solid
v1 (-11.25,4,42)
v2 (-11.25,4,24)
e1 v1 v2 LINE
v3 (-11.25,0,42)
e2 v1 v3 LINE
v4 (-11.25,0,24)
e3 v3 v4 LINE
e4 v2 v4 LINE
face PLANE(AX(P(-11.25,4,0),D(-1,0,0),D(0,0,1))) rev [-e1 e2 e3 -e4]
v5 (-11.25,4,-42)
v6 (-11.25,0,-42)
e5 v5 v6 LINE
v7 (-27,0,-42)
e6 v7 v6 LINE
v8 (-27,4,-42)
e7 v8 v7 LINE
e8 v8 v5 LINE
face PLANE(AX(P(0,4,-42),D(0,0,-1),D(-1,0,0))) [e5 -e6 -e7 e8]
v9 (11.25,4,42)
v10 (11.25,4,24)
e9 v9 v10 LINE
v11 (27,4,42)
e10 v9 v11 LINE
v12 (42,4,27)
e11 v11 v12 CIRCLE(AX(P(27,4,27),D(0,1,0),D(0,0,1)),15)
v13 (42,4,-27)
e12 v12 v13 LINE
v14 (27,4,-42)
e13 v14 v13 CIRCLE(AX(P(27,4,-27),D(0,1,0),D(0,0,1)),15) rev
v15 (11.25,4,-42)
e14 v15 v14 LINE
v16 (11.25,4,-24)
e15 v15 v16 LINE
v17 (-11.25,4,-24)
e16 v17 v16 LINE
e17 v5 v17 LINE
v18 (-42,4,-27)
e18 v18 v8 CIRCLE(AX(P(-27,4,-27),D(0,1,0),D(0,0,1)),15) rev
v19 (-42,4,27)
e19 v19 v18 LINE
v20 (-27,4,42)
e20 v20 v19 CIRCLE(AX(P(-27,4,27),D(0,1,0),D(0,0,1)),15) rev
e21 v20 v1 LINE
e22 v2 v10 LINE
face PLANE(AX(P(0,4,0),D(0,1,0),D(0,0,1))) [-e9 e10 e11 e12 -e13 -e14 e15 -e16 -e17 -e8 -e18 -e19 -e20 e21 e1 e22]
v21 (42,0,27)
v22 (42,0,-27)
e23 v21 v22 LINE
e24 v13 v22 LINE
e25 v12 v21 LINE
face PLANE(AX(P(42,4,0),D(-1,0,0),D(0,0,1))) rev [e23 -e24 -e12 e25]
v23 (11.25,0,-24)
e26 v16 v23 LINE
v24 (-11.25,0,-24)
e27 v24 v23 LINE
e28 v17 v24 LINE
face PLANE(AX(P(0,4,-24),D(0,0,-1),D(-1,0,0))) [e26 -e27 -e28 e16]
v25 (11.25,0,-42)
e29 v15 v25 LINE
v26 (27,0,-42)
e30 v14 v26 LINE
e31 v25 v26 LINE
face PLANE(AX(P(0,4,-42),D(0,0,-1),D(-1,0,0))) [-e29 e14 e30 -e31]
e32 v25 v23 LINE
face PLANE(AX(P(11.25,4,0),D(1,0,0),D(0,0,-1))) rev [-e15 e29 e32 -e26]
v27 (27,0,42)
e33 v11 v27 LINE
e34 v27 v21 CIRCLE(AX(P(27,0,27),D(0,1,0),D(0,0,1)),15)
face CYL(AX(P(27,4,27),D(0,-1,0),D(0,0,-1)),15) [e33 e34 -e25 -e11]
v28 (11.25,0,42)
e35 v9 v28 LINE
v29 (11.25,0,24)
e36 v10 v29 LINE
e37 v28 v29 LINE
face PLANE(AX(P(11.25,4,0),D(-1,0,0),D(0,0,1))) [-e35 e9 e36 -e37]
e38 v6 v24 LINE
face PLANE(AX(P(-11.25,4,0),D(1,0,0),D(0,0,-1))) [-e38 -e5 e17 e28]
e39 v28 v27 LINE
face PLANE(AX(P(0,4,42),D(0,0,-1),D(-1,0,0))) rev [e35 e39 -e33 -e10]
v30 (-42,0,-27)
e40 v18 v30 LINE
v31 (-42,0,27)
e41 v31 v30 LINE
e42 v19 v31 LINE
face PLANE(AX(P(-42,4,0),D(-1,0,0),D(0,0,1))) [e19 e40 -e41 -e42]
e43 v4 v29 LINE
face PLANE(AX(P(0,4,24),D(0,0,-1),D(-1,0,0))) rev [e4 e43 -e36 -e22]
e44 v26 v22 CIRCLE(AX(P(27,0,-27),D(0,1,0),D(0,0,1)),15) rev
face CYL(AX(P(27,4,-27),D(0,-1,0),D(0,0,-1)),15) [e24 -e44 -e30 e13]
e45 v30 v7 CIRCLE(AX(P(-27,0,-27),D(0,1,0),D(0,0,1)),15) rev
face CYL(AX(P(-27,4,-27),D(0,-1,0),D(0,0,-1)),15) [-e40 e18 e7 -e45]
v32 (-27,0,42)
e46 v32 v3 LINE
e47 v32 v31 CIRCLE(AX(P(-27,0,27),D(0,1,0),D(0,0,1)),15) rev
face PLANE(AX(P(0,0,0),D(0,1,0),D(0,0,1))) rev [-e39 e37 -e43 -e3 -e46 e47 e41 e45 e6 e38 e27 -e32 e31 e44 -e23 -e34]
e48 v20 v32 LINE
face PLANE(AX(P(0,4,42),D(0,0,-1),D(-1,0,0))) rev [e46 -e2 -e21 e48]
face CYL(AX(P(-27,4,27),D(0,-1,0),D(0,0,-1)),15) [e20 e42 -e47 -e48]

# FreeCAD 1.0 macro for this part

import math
import FreeCAD as App
import Part
import Sketcher
from FreeCAD import Vector
Q = App.Units.Quantity

doc = App.newDocument("Part")
body = doc.addObject("PartDesign::Body", "Body")

# Sketch on XZ plane
sketch1 = body.newObject("Sketcher::SketchObject", "Sketch")
sketch1.AttachmentSupport = (doc.getObject("XZ_Plane"), [""])
sketch1.MapMode = "FlatFace"
sketch1.addGeometry([
    Part.LineSegment(Vector(27, -42, 0), Vector(11, -42, 0)),  # 0
    Part.LineSegment(Vector(11, -42, 0), Vector(11, -24, 0)),  # 1
    Part.LineSegment(Vector(11, -24, 0), Vector(-11, -24, 0)),  # 2
    Part.LineSegment(Vector(-11, -24, 0), Vector(-11, -42, 0)),  # 3
    Part.LineSegment(Vector(-11, -42, 0), Vector(-27, -42, 0)),  # 4
    Part.ArcOfCircle(Part.Circle(Vector(-27, -27, 0), Vector(0, 0, 1), 15), math.radians(180), math.radians(270)),  # 5
    Part.LineSegment(Vector(-42, -27, 0), Vector(-42, 27, 0)),  # 6
    Part.ArcOfCircle(Part.Circle(Vector(-27, 27, 0), Vector(0, 0, 1), 15), math.radians(90), math.radians(180)),  # 7
    Part.LineSegment(Vector(-27, 42, 0), Vector(-11, 42, 0)),  # 8
    Part.LineSegment(Vector(-11, 42, 0), Vector(-11, 24, 0)),  # 9
    Part.LineSegment(Vector(-11, 24, 0), Vector(11, 24, 0)),  # 10
    Part.LineSegment(Vector(11, 24, 0), Vector(11, 42, 0)),  # 11
    Part.LineSegment(Vector(11, 42, 0), Vector(27, 42, 0)),  # 12
    Part.ArcOfCircle(Part.Circle(Vector(27, 27, 0), Vector(0, 0, 1), 15), math.radians(0), math.radians(90)),  # 13
    Part.LineSegment(Vector(42, 27, 0), Vector(42, -27, 0)),  # 14
    Part.ArcOfCircle(Part.Circle(Vector(27, -27, 0), Vector(0, 0, 1), 15), math.radians(-90), math.radians(0)),  # 15
], False)
sketch1.addConstraint([
    Sketcher.Constraint("Coincident", 0, 2, 1, 1),
    Sketcher.Constraint("Coincident", 1, 2, 2, 1),
    Sketcher.Constraint("Coincident", 2, 2, 3, 1),
    Sketcher.Constraint("Coincident", 3, 2, 4, 1),
    Sketcher.Constraint("Tangent", 4, 2, 5, 2),
    Sketcher.Constraint("Tangent", 5, 1, 6, 1),
    Sketcher.Constraint("Tangent", 6, 2, 7, 2),
    Sketcher.Constraint("Tangent", 7, 1, 8, 1),
    Sketcher.Constraint("Coincident", 8, 2, 9, 1),
    Sketcher.Constraint("Coincident", 9, 2, 10, 1),
    Sketcher.Constraint("Coincident", 10, 2, 11, 1),
    Sketcher.Constraint("Coincident", 11, 2, 12, 1),
    Sketcher.Constraint("Tangent", 12, 2, 13, 2),
    Sketcher.Constraint("Tangent", 13, 1, 14, 1),
    Sketcher.Constraint("Tangent", 14, 2, 15, 2),
    Sketcher.Constraint("Tangent", 15, 1, 0, 1),
    Sketcher.Constraint("Horizontal", 0),
    Sketcher.Constraint("Vertical", 1),
    Sketcher.Constraint("Horizontal", 2),
    Sketcher.Constraint("Vertical", 3),
    Sketcher.Constraint("Horizontal", 4),
    Sketcher.Constraint("Vertical", 6),
    Sketcher.Constraint("Horizontal", 8),
    Sketcher.Constraint("Vertical", 9),
    Sketcher.Constraint("Horizontal", 10),
    Sketcher.Constraint("Vertical", 11),
    Sketcher.Constraint("Horizontal", 12),
    Sketcher.Constraint("Vertical", 14),
    Sketcher.Constraint("Equal", 5, 7),
    Sketcher.Constraint("Equal", 7, 13),
    Sketcher.Constraint("Equal", 13, 15),
    Sketcher.Constraint("Symmetric", 5, 3, 13, 3, -1, 1),
    Sketcher.Constraint("Symmetric", 0, 2, 8, 2, -1, 1),
    Sketcher.Constraint("Symmetric", 2, 2, 10, 2, -1, 1),
    Sketcher.Constraint("Symmetric", 0, 2, 3, 2, -2),
    Sketcher.Constraint("Radius", 5, Q("15 mm")),
    Sketcher.Constraint("DistanceY", 1, 1, 1, 2, Q("18 mm")),
    Sketcher.Constraint("DistanceY", 6, 1, 6, 2, Q("54 mm")),
    Sketcher.Constraint("DistanceX", 2, 2, 2, 1, Q("22.5 mm")),
    Sketcher.Constraint("DistanceX", 5, 3, -1, 1, Q("27 mm")),
])
pad1 = body.newObject("PartDesign::Pad", "Pad")
pad1.Profile = sketch1
pad1.Length = 4
pad1.Reversed = True

doc.recompute()
